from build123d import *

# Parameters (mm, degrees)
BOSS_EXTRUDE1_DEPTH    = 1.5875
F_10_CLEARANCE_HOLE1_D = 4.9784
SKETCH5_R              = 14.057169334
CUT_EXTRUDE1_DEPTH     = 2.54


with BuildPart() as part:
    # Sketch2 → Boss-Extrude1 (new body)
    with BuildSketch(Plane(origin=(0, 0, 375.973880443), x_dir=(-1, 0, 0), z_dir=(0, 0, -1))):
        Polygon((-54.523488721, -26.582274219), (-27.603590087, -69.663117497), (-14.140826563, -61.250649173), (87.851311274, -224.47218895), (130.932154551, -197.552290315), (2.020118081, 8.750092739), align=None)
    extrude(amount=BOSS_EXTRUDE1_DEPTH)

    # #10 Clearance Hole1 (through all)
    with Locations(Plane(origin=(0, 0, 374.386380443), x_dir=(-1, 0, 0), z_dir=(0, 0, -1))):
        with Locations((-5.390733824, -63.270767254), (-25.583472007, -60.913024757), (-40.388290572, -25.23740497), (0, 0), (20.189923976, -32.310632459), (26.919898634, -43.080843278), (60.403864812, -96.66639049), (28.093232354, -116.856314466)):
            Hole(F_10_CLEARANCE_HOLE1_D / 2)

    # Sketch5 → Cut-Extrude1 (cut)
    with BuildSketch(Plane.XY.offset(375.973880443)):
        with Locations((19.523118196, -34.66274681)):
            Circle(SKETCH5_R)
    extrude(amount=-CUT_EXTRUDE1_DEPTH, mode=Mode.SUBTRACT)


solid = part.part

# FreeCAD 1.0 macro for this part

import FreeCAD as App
import Part
import Sketcher

V = App.Vector
Q = App.Units.Quantity

doc = App.newDocument("Part")
params = doc.addObject("Spreadsheet::Sheet", "Params")
for row, (alias, value) in enumerate([
    ("sketch1_length", "2 in"),
    ("sketch1_length2", "0.625 in"),
    ("pad1_length", "0.0625 in"),
    ("sketch2_diameter", "0.196 in"),
    ("hole_diameter", "0.196 in"),
    ("pocket1_length", "0.1 in"),
], start=1):
    params.set(f"A{row}", alias)
    params.set(f"B{row}", "=" + value)
    params.setAlias(f"B{row}", alias)

body = doc.addObject("PartDesign::Body", "Body")

# Sketch on XY plane
sketch1 = body.newObject("Sketcher::SketchObject", "Sketch")
sketch1.AttachmentSupport = (doc.getObject("XY_Plane"), [""])
sketch1.MapMode = "FlatFace"
sketch1.AttachmentOffset = App.Placement(V(0, 0, 375.97388), App.Rotation())
sketch1.addGeometry([
    Part.LineSegment(V(55, -27, 0), V(28, -70, 0)),  # 0
    Part.LineSegment(V(28, -70, 0), V(14, -61, 0)),  # 1
    Part.LineSegment(V(14, -61, 0), V(-88, -224, 0)),  # 2
    Part.LineSegment(V(-88, -224, 0), V(-131, -198, 0)),  # 3
    Part.LineSegment(V(-131, -198, 0), V(-2, 9, 0)),  # 4
    Part.LineSegment(V(-2, 9, 0), V(55, -27, 0)),  # 5
], False)
sketch1.addConstraint([
    Sketcher.Constraint("Coincident", 0, 2, 1, 1),
    Sketcher.Constraint("Coincident", 1, 2, 2, 1),
    Sketcher.Constraint("Coincident", 2, 2, 3, 1),
    Sketcher.Constraint("Coincident", 3, 2, 4, 1),
    Sketcher.Constraint("Coincident", 4, 2, 5, 1),
    Sketcher.Constraint("Coincident", 5, 2, 0, 1),
    Sketcher.Constraint("Perpendicular", 0, 1),
    Sketcher.Constraint("Perpendicular", 1, 2),
    Sketcher.Constraint("Perpendicular", 2, 3),
    Sketcher.Constraint("Perpendicular", 3, 4),
    Sketcher.Constraint("Perpendicular", 4, 5),
    Sketcher.Constraint("Equal", 0, 3),
    Sketcher.Constraint("Distance", 0, Q("2 in")),
    Sketcher.Constraint("Angle", 0, Q("-122 deg")),
    Sketcher.Constraint("Distance", 1, Q("0.625 in")),
    Sketcher.Constraint("DistanceX", 2, 2, 0, 2, 115.454901),
    Sketcher.Constraint("DistanceX", -1, 1, 0, 2, 27.60359),
    Sketcher.Constraint("DistanceY", 1, 2, -1, 1, 61.250649),
])
sketch1.setExpression("Constraints[12]", "Params.sketch1_length")
sketch1.setExpression("Constraints[14]", "Params.sketch1_length2")
pad1 = body.newObject("PartDesign::Pad", "Pad")
pad1.Profile = sketch1
pad1.setExpression("Length", "Params.pad1_length")
pad1.Reversed = True

# Sketch on XY plane
sketch2 = body.newObject("Sketcher::SketchObject", "Sketch001")
sketch2.AttachmentSupport = (doc.getObject("XY_Plane"), [""])
sketch2.MapMode = "FlatFace"
sketch2.AttachmentOffset = App.Placement(V(0, 0, 374.38638), App.Rotation())
sketch2.addGeometry([
    Part.Circle(V(5.4, -63.3, 0), V(0, 0, 1), 2.5),  # 0
    Part.Circle(V(25.6, -60.9, 0), V(0, 0, 1), 2.5),  # 1
    Part.Circle(V(40.4, -25.2, 0), V(0, 0, 1), 2.5),  # 2
    Part.Circle(V(0, 0, 0), V(0, 0, 1), 2.5),  # 3
    Part.Circle(V(-20.2, -32.3, 0), V(0, 0, 1), 2.5),  # 4
    Part.Circle(V(-26.9, -43.1, 0), V(0, 0, 1), 2.5),  # 5
    Part.Circle(V(-60.4, -96.7, 0), V(0, 0, 1), 2.5),  # 6
    Part.Circle(V(-28.1, -116.9, 0), V(0, 0, 1), 2.5),  # 7
], False)
sketch2.addConstraint([
    Sketcher.Constraint("Coincident", 3, 3, -1, 1),
    Sketcher.Constraint("Equal", 0, 1),
    Sketcher.Constraint("Equal", 1, 2),
    Sketcher.Constraint("Equal", 2, 3),
    Sketcher.Constraint("Equal", 3, 4),
    Sketcher.Constraint("Equal", 4, 5),
    Sketcher.Constraint("Equal", 5, 6),
    Sketcher.Constraint("Equal", 6, 7),
    Sketcher.Constraint("Diameter", 0, Q("0.196 in")),
    Sketcher.Constraint("DistanceX", 5, 3, -1, 1, 26.919899),
    Sketcher.Constraint("DistanceX", 6, 3, 0, 3, 65.794599),
    Sketcher.Constraint("DistanceX", -1, 1, 2, 3, 40.388291),
    Sketcher.Constraint("DistanceY", 6, 3, -1, 1, 96.66639),
    Sketcher.Constraint("DistanceX", 0, 3, 1, 3, 20.192738),
    Sketcher.Constraint("DistanceX", 1, 3, 2, 3, 14.804819),
    Sketcher.Constraint("DistanceY", 1, 3, 2, 3, 35.67562),
    Sketcher.Constraint("DistanceY", 5, 3, 4, 3, 10.770211),
    Sketcher.Constraint("DistanceY", 1, 3, 5, 3, 17.832181),
    Sketcher.Constraint("DistanceX", 6, 3, 4, 3, 40.213941),
    Sketcher.Constraint("DistanceY", 6, 3, 4, 3, 64.355758),
    Sketcher.Constraint("DistanceY", 7, 3, 5, 3, 73.775471),
    Sketcher.Constraint("DistanceX", 7, 3, 4, 3, 7.903308),
    Sketcher.Constraint("DistanceY", 0, 3, -1, 1, 63.270767),
])
sketch2.setExpression("Constraints[8]", "Params.sketch2_diameter")
doc.recompute()
hole = body.newObject("PartDesign::Hole", "Hole")
hole.Profile = sketch2
hole.ThreadType = "None"
hole.setExpression("Diameter", "Params.hole_diameter")
hole.DepthType = "ThroughAll"
hole.Reversed = True

# Sketch on XY plane
sketch3 = body.newObject("Sketcher::SketchObject", "Sketch002")
sketch3.AttachmentSupport = (doc.getObject("XY_Plane"), [""])
sketch3.MapMode = "FlatFace"
sketch3.AttachmentOffset = App.Placement(V(0, 0, 375.97388), App.Rotation())
sketch3.addGeometry(Part.Circle(V(20, -35, 0), V(0, 0, 1), 14), False)
sketch3.addConstraint([
    Sketcher.Constraint("Diameter", 0, 28.114339),
    Sketcher.Constraint("DistanceX", -1, 1, 0, 3, 19.523118),
    Sketcher.Constraint("DistanceY", 0, 3, -1, 1, 34.662747),
])
pocket1 = body.newObject("PartDesign::Pocket", "Pocket")
pocket1.Profile = sketch3
pocket1.setExpression("Length", "Params.pocket1_length")

doc.recompute()
